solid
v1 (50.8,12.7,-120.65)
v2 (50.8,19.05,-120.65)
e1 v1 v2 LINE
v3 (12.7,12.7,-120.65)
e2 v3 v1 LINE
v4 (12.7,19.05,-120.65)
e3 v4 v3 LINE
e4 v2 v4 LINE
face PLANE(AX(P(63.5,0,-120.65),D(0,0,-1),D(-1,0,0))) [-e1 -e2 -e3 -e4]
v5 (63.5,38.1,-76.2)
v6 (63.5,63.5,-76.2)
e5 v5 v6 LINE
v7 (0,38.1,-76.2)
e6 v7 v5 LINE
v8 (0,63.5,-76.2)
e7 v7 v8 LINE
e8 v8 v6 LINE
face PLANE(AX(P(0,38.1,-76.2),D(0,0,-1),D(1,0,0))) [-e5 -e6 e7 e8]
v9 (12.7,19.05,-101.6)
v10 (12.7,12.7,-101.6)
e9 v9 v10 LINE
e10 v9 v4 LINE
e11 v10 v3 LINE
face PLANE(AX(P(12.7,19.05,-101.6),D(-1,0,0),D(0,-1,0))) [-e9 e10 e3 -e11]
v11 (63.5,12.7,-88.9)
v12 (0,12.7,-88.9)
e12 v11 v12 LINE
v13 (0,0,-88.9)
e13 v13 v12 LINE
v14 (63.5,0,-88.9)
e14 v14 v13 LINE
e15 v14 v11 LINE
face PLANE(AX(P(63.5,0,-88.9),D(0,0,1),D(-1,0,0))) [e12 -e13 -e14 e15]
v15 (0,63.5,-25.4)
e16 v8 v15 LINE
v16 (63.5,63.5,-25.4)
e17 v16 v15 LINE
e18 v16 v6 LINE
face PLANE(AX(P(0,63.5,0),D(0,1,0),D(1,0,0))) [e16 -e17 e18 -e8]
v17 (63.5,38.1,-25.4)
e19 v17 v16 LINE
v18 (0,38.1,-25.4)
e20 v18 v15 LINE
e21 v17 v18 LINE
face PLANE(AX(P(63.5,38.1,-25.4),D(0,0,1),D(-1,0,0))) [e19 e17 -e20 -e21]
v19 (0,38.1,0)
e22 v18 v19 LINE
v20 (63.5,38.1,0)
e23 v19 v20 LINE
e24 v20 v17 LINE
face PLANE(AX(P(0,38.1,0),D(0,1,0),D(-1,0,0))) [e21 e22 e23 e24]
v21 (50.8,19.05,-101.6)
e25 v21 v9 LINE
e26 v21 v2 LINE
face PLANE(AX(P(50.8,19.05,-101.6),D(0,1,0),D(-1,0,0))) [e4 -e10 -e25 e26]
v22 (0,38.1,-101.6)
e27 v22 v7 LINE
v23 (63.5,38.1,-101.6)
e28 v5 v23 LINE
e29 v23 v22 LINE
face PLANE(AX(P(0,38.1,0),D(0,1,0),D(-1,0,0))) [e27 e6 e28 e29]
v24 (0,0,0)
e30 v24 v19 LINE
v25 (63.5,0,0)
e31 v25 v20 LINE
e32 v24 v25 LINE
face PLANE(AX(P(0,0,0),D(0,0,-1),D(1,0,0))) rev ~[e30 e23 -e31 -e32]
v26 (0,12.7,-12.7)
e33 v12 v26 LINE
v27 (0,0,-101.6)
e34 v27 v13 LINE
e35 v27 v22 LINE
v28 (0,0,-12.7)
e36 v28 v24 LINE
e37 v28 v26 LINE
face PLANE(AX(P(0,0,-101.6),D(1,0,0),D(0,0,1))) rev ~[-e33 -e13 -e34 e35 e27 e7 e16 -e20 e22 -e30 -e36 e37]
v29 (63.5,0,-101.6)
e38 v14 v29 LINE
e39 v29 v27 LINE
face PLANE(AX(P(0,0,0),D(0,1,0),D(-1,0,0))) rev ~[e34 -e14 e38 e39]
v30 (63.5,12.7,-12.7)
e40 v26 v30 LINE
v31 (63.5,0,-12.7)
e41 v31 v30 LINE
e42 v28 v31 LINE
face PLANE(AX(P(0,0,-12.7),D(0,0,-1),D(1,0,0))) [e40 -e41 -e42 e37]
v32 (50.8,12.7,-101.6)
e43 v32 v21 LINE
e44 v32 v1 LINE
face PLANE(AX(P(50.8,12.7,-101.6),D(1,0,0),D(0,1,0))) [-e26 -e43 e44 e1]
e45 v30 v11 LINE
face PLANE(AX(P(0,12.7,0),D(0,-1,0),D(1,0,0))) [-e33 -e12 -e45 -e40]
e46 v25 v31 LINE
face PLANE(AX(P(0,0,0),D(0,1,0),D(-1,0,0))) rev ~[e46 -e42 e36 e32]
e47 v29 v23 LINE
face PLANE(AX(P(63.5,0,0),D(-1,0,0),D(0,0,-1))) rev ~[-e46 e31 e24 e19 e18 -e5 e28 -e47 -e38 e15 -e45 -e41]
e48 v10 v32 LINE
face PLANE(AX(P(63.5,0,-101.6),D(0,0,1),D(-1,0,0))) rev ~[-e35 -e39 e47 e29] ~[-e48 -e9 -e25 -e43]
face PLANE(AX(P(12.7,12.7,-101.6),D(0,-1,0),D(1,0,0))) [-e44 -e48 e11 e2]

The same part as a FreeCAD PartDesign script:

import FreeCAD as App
import Part
import Sketcher
from FreeCAD import Vector
Q = App.Units.Quantity

doc = App.newDocument("Part")
body = doc.addObject("PartDesign::Body", "Body")

# Sketch on XZ plane
sketch1 = body.newObject("Sketcher::SketchObject", "Sketch")
sketch1.AttachmentSupport = (doc.getObject("XZ_Plane"), [""])
sketch1.MapMode = "FlatFace"
sketch1.addGeometry([
    Part.LineSegment(Vector(0, -101.6, 0), Vector(0, 0, 0)),
    Part.LineSegment(Vector(0, 0, 0), Vector(63.5, 0, 0)),
    Part.LineSegment(Vector(63.5, 0, 0), Vector(63.5, -101.6, 0)),
    Part.LineSegment(Vector(63.5, -101.6, 0), Vector(0, -101.6, 0)),
], False)
sketch1.addConstraint([
    Sketcher.Constraint("Coincident", 0, 2, 1, 1),
    Sketcher.Constraint("Coincident", 1, 2, 2, 1),
    Sketcher.Constraint("Coincident", 2, 2, 3, 1),
    Sketcher.Constraint("Coincident", 3, 2, 0, 1),
    Sketcher.Constraint("Vertical", 0),
    Sketcher.Constraint("Horizontal", 1),
    Sketcher.Constraint("Vertical", 2),
    Sketcher.Constraint("Horizontal", 3),
    Sketcher.Constraint("Coincident", 0, 2, -1, 1),
    Sketcher.Constraint("DistanceY", 0, 1, 0, 2, Q("4 in")),
    Sketcher.Constraint("DistanceX", 1, 1, 1, 2, Q("2.5 in")),
])
pad1 = body.newObject("PartDesign::Pad", "Pad")
pad1.Profile = sketch1
pad1.Length = Q("1.5 in")
pad1.Reversed = True

# Sketch on XZ plane
sketch2 = body.newObject("Sketcher::SketchObject", "Sketch001")
sketch2.AttachmentSupport = (doc.getObject("XZ_Plane"), [""])
sketch2.MapMode = "FlatFace"
sketch2.addGeometry([
    Part.LineSegment(Vector(0, -12.7, 0), Vector(0, -88.9, 0)),
    Part.LineSegment(Vector(0, -88.9, 0), Vector(63.5, -88.9, 0)),
    Part.LineSegment(Vector(63.5, -88.9, 0), Vector(63.5, -12.7, 0)),
    Part.LineSegment(Vector(63.5, -12.7, 0), Vector(0, -12.7, 0)),
], False)
sketch2.addConstraint([
    Sketcher.Constraint("Coincident", 0, 2, 1, 1),
    Sketcher.Constraint("Coincident", 1, 2, 2, 1),
    Sketcher.Constraint("Coincident", 2, 2, 3, 1),
    Sketcher.Constraint("Coincident", 3, 2, 0, 1),
    Sketcher.Constraint("Vertical", 0),
    Sketcher.Constraint("Horizontal", 1),
    Sketcher.Constraint("Vertical", 2),
    Sketcher.Constraint("Horizontal", 3),
    Sketcher.Constraint("PointOnObject", 0, 2, -2),
    Sketcher.Constraint("DistanceY", 0, 2, 0, 1, Q("3 in")),
    Sketcher.Constraint("DistanceY", 2, 2, -1, 1, Q("0.5 in")),
    Sketcher.Constraint("DistanceX", 1, 1, 1, 2, Q("2.5 in")),
])
pocket1 = body.newObject("PartDesign::Pocket", "Pocket")
pocket1.Profile = sketch2
pocket1.Length = Q("0.5 in")

# Sketch on XZ plane
sketch3 = body.newObject("Sketcher::SketchObject", "Sketch002")
sketch3.AttachmentSupport = (doc.getObject("XZ_Plane"), [""])
sketch3.MapMode = "FlatFace"
sketch3.AttachmentOffset = App.Placement(Vector(0, 0, -1.5 * 25.4), App.Rotation())
sketch3.addGeometry([
    Part.LineSegment(Vector(0, -25.4, 0), Vector(63.5, -25.4, 0)),
    Part.LineSegment(Vector(63.5, -25.4, 0), Vector(63.5, -76.2, 0)),
    Part.LineSegment(Vector(63.5, -76.2, 0), Vector(0, -76.2, 0)),
    Part.LineSegment(Vector(0, -76.2, 0), Vector(0, -25.4, 0)),
], False)
sketch3.addConstraint([
    Sketcher.Constraint("Coincident", 0, 2, 1, 1),
    Sketcher.Constraint("Coincident", 1, 2, 2, 1),
    Sketcher.Constraint("Coincident", 2, 2, 3, 1),
    Sketcher.Constraint("Coincident", 3, 2, 0, 1),
    Sketcher.Constraint("Horizontal", 0),
    Sketcher.Constraint("Vertical", 1),
    Sketcher.Constraint("Horizontal", 2),
    Sketcher.Constraint("Vertical", 3),
    Sketcher.Constraint("PointOnObject", 2, 2, -2),
    Sketcher.Constraint("DistanceY", 1, 2, 1, 1, Q("2 in")),
    Sketcher.Constraint("DistanceY", 0, 2, -1, 1, Q("1 in")),
    Sketcher.Constraint("DistanceX", 0, 1, 0, 2, Q("2.5 in")),
])
pad2 = body.newObject("PartDesign::Pad", "Pad001")
pad2.Profile = sketch3
pad2.Length = Q("1 in")
pad2.Reversed = True

# Sketch on XY plane
sketch4 = body.newObject("Sketcher::SketchObject", "Sketch003")
sketch4.AttachmentSupport = (doc.getObject("XY_Plane"), [""])
sketch4.MapMode = "FlatFace"
sketch4.AttachmentOffset = App.Placement(Vector(0, 0, -4 * 25.4), App.Rotation())
sketch4.addGeometry([
    Part.LineSegment(Vector(12.7, 19.05, 0), Vector(50.8, 19.05, 0)),
    Part.LineSegment(Vector(50.8, 19.05, 0), Vector(50.8, 12.7, 0)),
    Part.LineSegment(Vector(50.8, 12.7, 0), Vector(12.7, 12.7, 0)),
    Part.LineSegment(Vector(12.7, 12.7, 0), Vector(12.7, 19.05, 0)),
], False)
sketch4.addConstraint([
    Sketcher.Constraint("Coincident", 0, 2, 1, 1),
    Sketcher.Constraint("Coincident", 1, 2, 2, 1),
    Sketcher.Constraint("Coincident", 2, 2, 3, 1),
    Sketcher.Constraint("Coincident", 3, 2, 0, 1),
    Sketcher.Constraint("Horizontal", 0),
    Sketcher.Constraint("Vertical", 1),
    Sketcher.Constraint("Horizontal", 2),
    Sketcher.Constraint("Vertical", 3),
    Sketcher.Constraint("DistanceX", 0, 1, 0, 2, Q("1.5 in")),
    Sketcher.Constraint("DistanceY", 1, 2, 1, 1, Q("0.25 in")),
    Sketcher.Constraint("DistanceY", -1, 1, 1, 2, Q("0.5 in")),
    Sketcher.Constraint("DistanceX", -1, 1, 2, 2, Q("0.5 in")),
])
pad3 = body.newObject("PartDesign::Pad", "Pad002")
pad3.Profile = sketch4
pad3.Length = Q("0.75 in")
pad3.Reversed = True

doc.recompute()
